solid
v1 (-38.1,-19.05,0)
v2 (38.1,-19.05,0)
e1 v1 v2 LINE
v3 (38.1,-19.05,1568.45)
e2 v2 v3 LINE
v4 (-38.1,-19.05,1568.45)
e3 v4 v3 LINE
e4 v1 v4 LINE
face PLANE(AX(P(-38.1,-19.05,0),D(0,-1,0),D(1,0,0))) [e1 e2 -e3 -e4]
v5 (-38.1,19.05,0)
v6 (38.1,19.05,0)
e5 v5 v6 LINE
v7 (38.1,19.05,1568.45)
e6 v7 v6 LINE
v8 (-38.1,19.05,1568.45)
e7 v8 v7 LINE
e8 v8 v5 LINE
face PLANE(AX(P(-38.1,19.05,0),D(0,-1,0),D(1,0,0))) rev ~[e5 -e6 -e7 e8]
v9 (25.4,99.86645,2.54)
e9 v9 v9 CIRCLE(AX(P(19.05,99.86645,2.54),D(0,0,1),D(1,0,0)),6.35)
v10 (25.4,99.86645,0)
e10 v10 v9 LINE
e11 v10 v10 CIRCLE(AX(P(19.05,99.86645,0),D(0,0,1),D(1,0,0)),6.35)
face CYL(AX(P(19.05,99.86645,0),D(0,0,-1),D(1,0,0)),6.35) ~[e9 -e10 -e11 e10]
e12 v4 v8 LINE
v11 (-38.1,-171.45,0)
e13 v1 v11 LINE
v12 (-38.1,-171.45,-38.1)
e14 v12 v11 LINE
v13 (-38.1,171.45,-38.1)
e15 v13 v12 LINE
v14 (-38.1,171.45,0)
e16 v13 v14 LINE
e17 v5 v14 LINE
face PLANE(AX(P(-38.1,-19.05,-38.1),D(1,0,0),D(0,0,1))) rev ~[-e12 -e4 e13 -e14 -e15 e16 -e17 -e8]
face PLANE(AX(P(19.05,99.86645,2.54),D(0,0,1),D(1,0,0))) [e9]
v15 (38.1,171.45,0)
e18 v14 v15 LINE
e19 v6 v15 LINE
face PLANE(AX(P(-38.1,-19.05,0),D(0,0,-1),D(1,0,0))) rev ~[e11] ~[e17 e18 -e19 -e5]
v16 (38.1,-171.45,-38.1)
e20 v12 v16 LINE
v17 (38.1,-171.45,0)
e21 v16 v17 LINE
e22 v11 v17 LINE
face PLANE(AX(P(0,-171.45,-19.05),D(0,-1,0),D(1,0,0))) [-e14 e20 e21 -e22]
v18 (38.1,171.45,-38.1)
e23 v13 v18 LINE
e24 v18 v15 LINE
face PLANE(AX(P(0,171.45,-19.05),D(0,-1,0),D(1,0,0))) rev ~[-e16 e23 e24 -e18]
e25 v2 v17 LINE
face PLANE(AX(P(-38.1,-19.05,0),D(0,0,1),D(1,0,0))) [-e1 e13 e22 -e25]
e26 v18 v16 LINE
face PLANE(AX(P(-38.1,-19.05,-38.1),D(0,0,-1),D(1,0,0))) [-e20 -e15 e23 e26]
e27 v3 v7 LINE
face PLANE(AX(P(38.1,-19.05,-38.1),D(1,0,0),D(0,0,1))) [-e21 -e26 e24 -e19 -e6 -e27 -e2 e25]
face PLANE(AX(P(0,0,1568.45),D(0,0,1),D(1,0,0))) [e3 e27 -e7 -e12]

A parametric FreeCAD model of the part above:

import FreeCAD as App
import Part
import Sketcher
Q = App.Units.Quantity

doc = App.newDocument("Part")
body = doc.addObject("PartDesign::Body", "Body")

sketch1 = body.newObject("Sketcher::SketchObject", "Sketch")
sketch1.AttachmentSupport = (doc.getObject("XY_Plane"), [""])
sketch1.MapMode = "FlatFace"
sketch1.addGeometry([
    Part.LineSegment(App.Vector(-38, 19, 0), App.Vector(-38, -19, 0)),
    Part.LineSegment(App.Vector(-38, -19, 0), App.Vector(38, -19, 0)),
    Part.LineSegment(App.Vector(38, -19, 0), App.Vector(38, 19, 0)),
    Part.LineSegment(App.Vector(38, 19, 0), App.Vector(-38, 19, 0)),
], False)
sketch1.addConstraint([
    Sketcher.Constraint("Coincident", 0, 2, 1, 1),
    Sketcher.Constraint("Coincident", 1, 2, 2, 1),
    Sketcher.Constraint("Coincident", 2, 2, 3, 1),
    Sketcher.Constraint("Coincident", 3, 2, 0, 1),
    Sketcher.Constraint("Vertical", 0),
    Sketcher.Constraint("Horizontal", 1),
    Sketcher.Constraint("Vertical", 2),
    Sketcher.Constraint("Horizontal", 3),
    Sketcher.Constraint("Symmetric", 0, 2, 2, 2, -1, 1),
    Sketcher.Constraint("DistanceX", 1, 1, 1, 2, Q("3 in")),
    Sketcher.Constraint("DistanceY", 0, 2, 0, 1, Q("1.5 in")),
])
pad1 = body.newObject("PartDesign::Pad", "Pad")
pad1.Profile = sketch1
pad1.Length = Q("61.75 in")

sketch2 = body.newObject("Sketcher::SketchObject", "Sketch001")
sketch2.AttachmentSupport = (doc.getObject("XY_Plane"), [""])
sketch2.MapMode = "FlatFace"
sketch2.addGeometry([
    Part.LineSegment(App.Vector(-38, -19, 0), App.Vector(-38, 19, 0)),
    Part.LineSegment(App.Vector(-38, 19, 0), App.Vector(38, 19, 0)),
    Part.LineSegment(App.Vector(38, 19, 0), App.Vector(38, -19, 0)),
    Part.LineSegment(App.Vector(38, -19, 0), App.Vector(-38, -19, 0)),
], False)
sketch2.addConstraint([
    Sketcher.Constraint("Coincident", 0, 2, 1, 1),
    Sketcher.Constraint("Coincident", 1, 2, 2, 1),
    Sketcher.Constraint("Coincident", 2, 2, 3, 1),
    Sketcher.Constraint("Coincident", 3, 2, 0, 1),
    Sketcher.Constraint("Vertical", 0),
    Sketcher.Constraint("Horizontal", 1),
    Sketcher.Constraint("Vertical", 2),
    Sketcher.Constraint("Horizontal", 3),
    Sketcher.Constraint("Symmetric", 0, 2, 2, 2, -1, 1),
    Sketcher.Constraint("DistanceX", 1, 1, 1, 2, Q("3 in")),
    Sketcher.Constraint("DistanceY", 0, 1, 0, 2, Q("1.5 in")),
])
pad2 = body.newObject("PartDesign::Pad", "Pad001")
pad2.Profile = sketch2
pad2.Length = Q("1.5 in")
pad2.Reversed = True

sketch3 = body.newObject("Sketcher::SketchObject", "Sketch002")
sketch3.AttachmentSupport = (doc.getObject("XZ_Plane"), [""])
sketch3.MapMode = "FlatFace"
sketch3.AttachmentOffset = App.Placement(App.Vector(0, 0, 0.75 * 25.4), App.Rotation())
sketch3.addGeometry([
    Part.LineSegment(App.Vector(-38, 0, 0), App.Vector(-38, -38, 0)),
    Part.LineSegment(App.Vector(-38, -38, 0), App.Vector(38, -38, 0)),
    Part.LineSegment(App.Vector(38, -38, 0), App.Vector(38, 0, 0)),
    Part.LineSegment(App.Vector(38, 0, 0), App.Vector(-38, 0, 0)),
], False)
sketch3.addConstraint([
    Sketcher.Constraint("Coincident", 0, 2, 1, 1),
    Sketcher.Constraint("Coincident", 1, 2, 2, 1),
    Sketcher.Constraint("Coincident", 2, 2, 3, 1),
    Sketcher.Constraint("Coincident", 3, 2, 0, 1),
    Sketcher.Constraint("Vertical", 0),
    Sketcher.Constraint("Horizontal", 1),
    Sketcher.Constraint("Vertical", 2),
    Sketcher.Constraint("Horizontal", 3),
    Sketcher.Constraint("Symmetric", 2, 2, 3, 2, -1, 1),
    Sketcher.Constraint("DistanceX", 1, 1, 1, 2, Q("3 in")),
    Sketcher.Constraint("DistanceY", 0, 2, 0, 1, Q("1.5 in")),
])
pad3 = body.newObject("PartDesign::Pad", "Pad002")
pad3.Profile = sketch3
pad3.Type = "TwoLengths"
pad3.Length = Q("6 in")
pad3.Length2 = Q("7.5 in")

sketch4 = body.newObject("Sketcher::SketchObject", "Sketch003")
sketch4.AttachmentSupport = (doc.getObject("XY_Plane"), [""])
sketch4.MapMode = "FlatFace"
sketch4.addGeometry(Part.Circle(App.Vector(19, 100, 0), App.Vector(0, 0, 1), 6), False)
sketch4.addConstraint([
    Sketcher.Constraint("Diameter", 0, Q("0.5 in")),
    Sketcher.Constraint("DistanceX", -1, 1, 0, 3, Q("0.75 in")),
    Sketcher.Constraint("DistanceY", -1, 1, 0, 3, 99.86645),
])
pad4 = body.newObject("PartDesign::Pad", "Pad003")
pad4.Profile = sketch4
pad4.Length = Q("0.1 in")

doc.recompute()
